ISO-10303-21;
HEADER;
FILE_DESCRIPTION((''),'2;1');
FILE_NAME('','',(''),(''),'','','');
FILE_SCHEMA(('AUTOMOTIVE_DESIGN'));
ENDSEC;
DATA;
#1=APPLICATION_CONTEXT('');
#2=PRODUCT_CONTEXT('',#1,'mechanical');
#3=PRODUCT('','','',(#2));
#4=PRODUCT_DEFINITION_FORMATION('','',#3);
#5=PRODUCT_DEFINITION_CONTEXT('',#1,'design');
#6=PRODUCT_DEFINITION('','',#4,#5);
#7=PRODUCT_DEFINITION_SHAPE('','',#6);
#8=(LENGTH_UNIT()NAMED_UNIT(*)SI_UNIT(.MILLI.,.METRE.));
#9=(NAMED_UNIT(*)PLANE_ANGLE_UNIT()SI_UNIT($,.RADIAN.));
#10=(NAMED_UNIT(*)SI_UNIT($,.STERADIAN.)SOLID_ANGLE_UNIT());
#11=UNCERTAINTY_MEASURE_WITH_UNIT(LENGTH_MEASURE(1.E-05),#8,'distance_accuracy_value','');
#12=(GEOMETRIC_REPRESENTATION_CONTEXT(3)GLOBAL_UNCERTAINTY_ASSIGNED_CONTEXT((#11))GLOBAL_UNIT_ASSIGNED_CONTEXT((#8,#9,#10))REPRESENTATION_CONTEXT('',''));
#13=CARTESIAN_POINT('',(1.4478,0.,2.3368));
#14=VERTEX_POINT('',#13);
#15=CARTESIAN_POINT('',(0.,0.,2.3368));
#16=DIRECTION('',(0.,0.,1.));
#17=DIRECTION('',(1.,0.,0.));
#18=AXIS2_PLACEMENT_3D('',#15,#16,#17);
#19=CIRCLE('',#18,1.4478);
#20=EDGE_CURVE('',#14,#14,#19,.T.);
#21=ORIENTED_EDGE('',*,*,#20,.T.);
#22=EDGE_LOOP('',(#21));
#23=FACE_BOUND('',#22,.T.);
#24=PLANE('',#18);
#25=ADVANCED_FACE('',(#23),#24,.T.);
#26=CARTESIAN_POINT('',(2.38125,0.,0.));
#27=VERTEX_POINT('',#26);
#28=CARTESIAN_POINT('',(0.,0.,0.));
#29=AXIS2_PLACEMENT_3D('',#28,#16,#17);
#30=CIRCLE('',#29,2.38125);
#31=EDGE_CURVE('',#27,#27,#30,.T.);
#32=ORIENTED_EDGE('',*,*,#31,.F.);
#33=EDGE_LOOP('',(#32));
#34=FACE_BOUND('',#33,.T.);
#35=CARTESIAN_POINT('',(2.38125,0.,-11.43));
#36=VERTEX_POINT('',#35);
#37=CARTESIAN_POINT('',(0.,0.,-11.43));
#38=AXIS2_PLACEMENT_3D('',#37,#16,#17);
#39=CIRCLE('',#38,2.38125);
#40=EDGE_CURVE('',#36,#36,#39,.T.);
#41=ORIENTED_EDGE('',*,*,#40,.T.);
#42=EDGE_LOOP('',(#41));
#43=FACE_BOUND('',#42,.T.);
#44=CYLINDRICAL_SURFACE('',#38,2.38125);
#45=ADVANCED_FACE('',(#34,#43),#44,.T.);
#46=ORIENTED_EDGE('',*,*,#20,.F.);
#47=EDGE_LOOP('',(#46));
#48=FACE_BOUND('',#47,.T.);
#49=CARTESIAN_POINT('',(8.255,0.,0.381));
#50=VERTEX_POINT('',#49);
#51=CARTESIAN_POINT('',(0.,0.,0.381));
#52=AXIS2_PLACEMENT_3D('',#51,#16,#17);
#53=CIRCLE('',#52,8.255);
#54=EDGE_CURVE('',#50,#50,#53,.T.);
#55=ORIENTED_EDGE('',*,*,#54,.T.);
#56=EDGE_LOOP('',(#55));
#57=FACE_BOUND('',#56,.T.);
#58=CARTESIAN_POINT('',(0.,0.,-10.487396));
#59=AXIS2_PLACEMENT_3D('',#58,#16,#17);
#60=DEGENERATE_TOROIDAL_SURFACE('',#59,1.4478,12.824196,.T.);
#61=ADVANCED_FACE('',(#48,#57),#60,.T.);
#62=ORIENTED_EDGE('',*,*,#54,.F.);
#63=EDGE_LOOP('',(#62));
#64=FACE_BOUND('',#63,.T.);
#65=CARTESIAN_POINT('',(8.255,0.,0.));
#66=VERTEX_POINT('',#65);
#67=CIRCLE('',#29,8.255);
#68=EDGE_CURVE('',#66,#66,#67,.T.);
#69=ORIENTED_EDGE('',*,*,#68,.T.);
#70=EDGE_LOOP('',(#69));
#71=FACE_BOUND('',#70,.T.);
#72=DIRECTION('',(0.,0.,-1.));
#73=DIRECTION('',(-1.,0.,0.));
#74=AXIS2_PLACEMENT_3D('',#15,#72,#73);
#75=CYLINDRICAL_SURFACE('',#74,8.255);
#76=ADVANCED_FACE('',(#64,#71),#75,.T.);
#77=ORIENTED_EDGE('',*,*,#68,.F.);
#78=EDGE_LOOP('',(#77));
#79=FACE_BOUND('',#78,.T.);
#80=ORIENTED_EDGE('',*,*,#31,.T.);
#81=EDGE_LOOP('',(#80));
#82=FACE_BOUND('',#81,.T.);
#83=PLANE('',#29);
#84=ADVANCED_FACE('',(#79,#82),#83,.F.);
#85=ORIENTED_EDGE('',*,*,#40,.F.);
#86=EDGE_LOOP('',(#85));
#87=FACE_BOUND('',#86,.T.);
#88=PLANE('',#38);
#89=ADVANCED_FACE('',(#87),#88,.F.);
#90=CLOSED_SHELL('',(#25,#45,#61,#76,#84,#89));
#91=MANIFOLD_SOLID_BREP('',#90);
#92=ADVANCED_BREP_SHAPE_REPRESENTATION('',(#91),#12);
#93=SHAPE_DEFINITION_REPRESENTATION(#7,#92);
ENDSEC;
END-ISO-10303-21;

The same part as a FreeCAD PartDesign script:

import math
import FreeCAD as App
import Part
import Sketcher

V = App.Vector
Q = App.Units.Quantity

doc = App.newDocument("Part")
body = doc.addObject("PartDesign::Body", "Body")

sketch1 = body.newObject("Sketcher::SketchObject", "Sketch")
sketch1.AttachmentSupport = (doc.getObject("XY_Plane"), [""])
sketch1.MapMode = "FlatFace"
sketch1.addGeometry(Part.Circle(V(0, 0, 0), V(0, 0, 1), 8), False)
sketch1.addConstraint(Sketcher.Constraint("Coincident", 0, 3, -1, 1))
sketch1.addConstraint(Sketcher.Constraint("Diameter", 0, Q("0.65 in")))
pad1 = body.newObject("PartDesign::Pad", "Pad")
pad1.Profile = sketch1
pad1.Length = Q("0.092 in")

sketch2 = body.newObject("Sketcher::SketchObject", "Sketch001")
sketch2.AttachmentSupport = (doc.getObject("XY_Plane"), [""])
sketch2.MapMode = "FlatFace"
sketch2.addGeometry(Part.Circle(V(0, 0, 0), V(0, 0, 1), 2.4), False)
sketch2.addConstraint(Sketcher.Constraint("Coincident", 0, 3, -1, 1))
sketch2.addConstraint(Sketcher.Constraint("Diameter", 0, Q("0.1875 in")))
pad2 = body.newObject("PartDesign::Pad", "Pad001")
pad2.Profile = sketch2
pad2.Length = Q("0.45 in")
pad2.Reversed = True

sketch3 = body.newObject("Sketcher::SketchObject", "Sketch002")
sketch3.AttachmentSupport = (doc.getObject("XZ_Plane"), [""])
sketch3.MapMode = "FlatFace"
sketch3.addGeometry(Part.ArcOfCircle(Part.Circle(V(1.4, -10.5, 0), V(0, 0, 1), 12.8), math.radians(58), math.radians(90)), False)
sketch3.addGeometry(Part.LineSegment(V(1.4, 2.3, 0), V(8.3, 2.3, 0)), False)
sketch3.addGeometry(Part.LineSegment(V(8.3, 2.3, 0), V(8.3, 0.4, 0)), False)
sketch3.addConstraint(Sketcher.Constraint("Tangent", 0, 2, 1, 1))
sketch3.addConstraint(Sketcher.Constraint("Coincident", 1, 2, 2, 1))
sketch3.addConstraint(Sketcher.Constraint("Coincident", 2, 2, 0, 1))
sketch3.addConstraint(Sketcher.Constraint("Horizontal", 1))
sketch3.addConstraint(Sketcher.Constraint("Vertical", 2))
sketch3.addConstraint(Sketcher.Constraint("DistanceX", 1, 1, 1, 2, Q("0.268 in")))
sketch3.addConstraint(Sketcher.Constraint("DistanceY", 2, 2, 2, 1, Q("0.077 in")))
sketch3.addConstraint(Sketcher.Constraint("DistanceX", -1, 1, 0, 3, Q("0.057 in")))
sketch3.addConstraint(Sketcher.Constraint("DistanceY", -1, 1, 0, 2, Q("0.092 in")))
groove = body.newObject("PartDesign::Groove", "Groove")
groove.Profile = sketch3
groove.ReferenceAxis = (sketch3, ["V_Axis"])
groove.Angle = 360

doc.recompute()
